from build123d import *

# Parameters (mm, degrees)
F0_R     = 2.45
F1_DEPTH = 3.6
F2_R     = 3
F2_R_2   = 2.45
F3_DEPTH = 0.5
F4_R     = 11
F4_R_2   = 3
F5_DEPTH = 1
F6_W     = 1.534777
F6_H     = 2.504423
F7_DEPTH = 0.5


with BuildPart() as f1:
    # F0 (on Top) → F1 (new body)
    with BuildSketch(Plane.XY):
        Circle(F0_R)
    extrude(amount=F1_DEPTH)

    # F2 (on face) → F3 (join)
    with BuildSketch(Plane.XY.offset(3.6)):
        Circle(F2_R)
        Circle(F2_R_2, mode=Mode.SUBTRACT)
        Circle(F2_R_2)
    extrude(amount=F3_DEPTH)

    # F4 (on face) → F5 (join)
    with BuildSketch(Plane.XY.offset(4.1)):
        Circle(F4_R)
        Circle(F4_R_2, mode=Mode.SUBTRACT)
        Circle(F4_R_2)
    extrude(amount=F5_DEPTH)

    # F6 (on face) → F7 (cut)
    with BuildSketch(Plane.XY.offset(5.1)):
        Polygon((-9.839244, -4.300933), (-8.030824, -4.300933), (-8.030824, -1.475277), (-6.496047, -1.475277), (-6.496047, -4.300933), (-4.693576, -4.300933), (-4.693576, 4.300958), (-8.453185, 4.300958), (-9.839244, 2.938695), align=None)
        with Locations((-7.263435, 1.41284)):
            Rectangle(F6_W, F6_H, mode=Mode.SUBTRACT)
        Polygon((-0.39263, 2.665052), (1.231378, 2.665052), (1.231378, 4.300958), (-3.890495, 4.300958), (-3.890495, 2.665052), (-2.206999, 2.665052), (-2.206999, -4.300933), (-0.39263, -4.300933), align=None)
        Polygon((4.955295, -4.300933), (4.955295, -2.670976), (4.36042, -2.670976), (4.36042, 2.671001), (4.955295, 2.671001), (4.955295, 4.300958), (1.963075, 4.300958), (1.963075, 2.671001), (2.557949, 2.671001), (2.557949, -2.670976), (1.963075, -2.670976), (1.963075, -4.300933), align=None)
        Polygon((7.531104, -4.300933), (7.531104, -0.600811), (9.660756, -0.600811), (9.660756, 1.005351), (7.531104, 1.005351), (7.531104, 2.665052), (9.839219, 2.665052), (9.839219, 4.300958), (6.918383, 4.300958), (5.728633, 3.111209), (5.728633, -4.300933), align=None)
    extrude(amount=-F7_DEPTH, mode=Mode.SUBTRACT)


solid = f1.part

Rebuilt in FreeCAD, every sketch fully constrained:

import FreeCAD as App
import Part
import Sketcher

doc = App.newDocument("Part")
body = doc.addObject("PartDesign::Body", "Body")

sketch1 = body.newObject("Sketcher::SketchObject", "Sketch")
sketch1.AttachmentSupport = (doc.getObject("XY_Plane"), [""])
sketch1.MapMode = "FlatFace"
sketch1.addGeometry(Part.Circle(App.Vector(0, 0, 0), App.Vector(0, 0, 1), 2.45), False)
sketch1.addConstraint([
    Sketcher.Constraint("Coincident", 0, 3, -1, 1),
    Sketcher.Constraint("Diameter", 0, 4.9),
])
pad1 = body.newObject("PartDesign::Pad", "Pad")
pad1.Profile = sketch1
pad1.Length = 3.6

sketch2 = body.newObject("Sketcher::SketchObject", "Sketch001")
sketch2.AttachmentSupport = (doc.getObject("XY_Plane"), [""])
sketch2.MapMode = "FlatFace"
sketch2.AttachmentOffset = App.Placement(App.Vector(0, 0, 3.6), App.Rotation())
sketch2.addGeometry(Part.Circle(App.Vector(0, 0, 0), App.Vector(0, 0, 1), 3), False)
sketch2.addConstraint([
    Sketcher.Constraint("Coincident", 0, 3, -1, 1),
    Sketcher.Constraint("Diameter", 0, 6.0),
])
pad2 = body.newObject("PartDesign::Pad", "Pad001")
pad2.Profile = sketch2
pad2.Length = 0.5

sketch3 = body.newObject("Sketcher::SketchObject", "Sketch002")
sketch3.AttachmentSupport = (doc.getObject("XY_Plane"), [""])
sketch3.MapMode = "FlatFace"
sketch3.AttachmentOffset = App.Placement(App.Vector(0, 0, 4.1), App.Rotation())
sketch3.addGeometry(Part.Circle(App.Vector(0, 0, 0), App.Vector(0, 0, 1), 11), False)
sketch3.addConstraint([
    Sketcher.Constraint("Coincident", 0, 3, -1, 1),
    Sketcher.Constraint("Diameter", 0, 22.0),
])
pad3 = body.newObject("PartDesign::Pad", "Pad002")
pad3.Profile = sketch3
pad3.Length = 1

sketch4 = body.newObject("Sketcher::SketchObject", "Sketch003")
sketch4.AttachmentSupport = (doc.getObject("XY_Plane"), [""])
sketch4.MapMode = "FlatFace"
sketch4.AttachmentOffset = App.Placement(App.Vector(0, 0, 5.1), App.Rotation())
sketch4.addGeometry([
    Part.LineSegment(App.Vector(-9.839244, -4.300933, 0), App.Vector(-8.030824, -4.300933, 0)),
    Part.LineSegment(App.Vector(-8.030824, -4.300933, 0), App.Vector(-8.030824, -1.475277, 0)),
    Part.LineSegment(App.Vector(-8.030824, -1.475277, 0), App.Vector(-6.496047, -1.475277, 0)),
    Part.LineSegment(App.Vector(-6.496047, -1.475277, 0), App.Vector(-6.496047, -4.300933, 0)),
    Part.LineSegment(App.Vector(-6.496047, -4.300933, 0), App.Vector(-4.693576, -4.300933, 0)),
    Part.LineSegment(App.Vector(-4.693576, -4.300933, 0), App.Vector(-4.693576, 4.300958, 0)),
    Part.LineSegment(App.Vector(-4.693576, 4.300958, 0), App.Vector(-8.453185, 4.300958, 0)),
    Part.LineSegment(App.Vector(-8.453185, 4.300958, 0), App.Vector(-9.839244, 2.938695, 0)),
    Part.LineSegment(App.Vector(-9.839244, 2.938695, 0), App.Vector(-9.839244, -4.300933, 0)),
    Part.LineSegment(App.Vector(-6.496047, 0.160629, 0), App.Vector(-8.030824, 0.160629, 0)),
    Part.LineSegment(App.Vector(-8.030824, 0.160629, 0), App.Vector(-8.030824, 2.665052, 0)),
    Part.LineSegment(App.Vector(-8.030824, 2.665052, 0), App.Vector(-6.496047, 2.665052, 0)),
    Part.LineSegment(App.Vector(-6.496047, 2.665052, 0), App.Vector(-6.496047, 0.160629, 0)),
    Part.LineSegment(App.Vector(-0.39263, 2.665052, 0), App.Vector(1.231378, 2.665052, 0)),
    Part.LineSegment(App.Vector(1.231378, 2.665052, 0), App.Vector(1.231378, 4.300958, 0)),
    Part.LineSegment(App.Vector(1.231378, 4.300958, 0), App.Vector(-3.890495, 4.300958, 0)),
    Part.LineSegment(App.Vector(-3.890495, 4.300958, 0), App.Vector(-3.890495, 2.665052, 0)),
    Part.LineSegment(App.Vector(-3.890495, 2.665052, 0), App.Vector(-2.206999, 2.665052, 0)),
    Part.LineSegment(App.Vector(-2.206999, 2.665052, 0), App.Vector(-2.206999, -4.300933, 0)),
    Part.LineSegment(App.Vector(-2.206999, -4.300933, 0), App.Vector(-0.39263, -4.300933, 0)),
    Part.LineSegment(App.Vector(-0.39263, -4.300933, 0), App.Vector(-0.39263, 2.665052, 0)),
    Part.LineSegment(App.Vector(4.955295, -4.300933, 0), App.Vector(4.955295, -2.670976, 0)),
    Part.LineSegment(App.Vector(4.955295, -2.670976, 0), App.Vector(4.36042, -2.670976, 0)),
    Part.LineSegment(App.Vector(4.36042, -2.670976, 0), App.Vector(4.36042, 2.671001, 0)),
    Part.LineSegment(App.Vector(4.36042, 2.671001, 0), App.Vector(4.955295, 2.671001, 0)),
    Part.LineSegment(App.Vector(4.955295, 2.671001, 0), App.Vector(4.955295, 4.300958, 0)),
    Part.LineSegment(App.Vector(4.955295, 4.300958, 0), App.Vector(1.963075, 4.300958, 0)),
    Part.LineSegment(App.Vector(1.963075, 4.300958, 0), App.Vector(1.963075, 2.671001, 0)),
    Part.LineSegment(App.Vector(1.963075, 2.671001, 0), App.Vector(2.557949, 2.671001, 0)),
    Part.LineSegment(App.Vector(2.557949, 2.671001, 0), App.Vector(2.557949, -2.670976, 0)),
    Part.LineSegment(App.Vector(2.557949, -2.670976, 0), App.Vector(1.963075, -2.670976, 0)),
    Part.LineSegment(App.Vector(1.963075, -2.670976, 0), App.Vector(1.963075, -4.300933, 0)),
    Part.LineSegment(App.Vector(1.963075, -4.300933, 0), App.Vector(4.955295, -4.300933, 0)),
    Part.LineSegment(App.Vector(7.531104, -4.300933, 0), App.Vector(7.531104, -0.600811, 0)),
    Part.LineSegment(App.Vector(7.531104, -0.600811, 0), App.Vector(9.660756, -0.600811, 0)),
    Part.LineSegment(App.Vector(9.660756, -0.600811, 0), App.Vector(9.660756, 1.005351, 0)),
    Part.LineSegment(App.Vector(9.660756, 1.005351, 0), App.Vector(7.531104, 1.005351, 0)),
    Part.LineSegment(App.Vector(7.531104, 1.005351, 0), App.Vector(7.531104, 2.665052, 0)),
    Part.LineSegment(App.Vector(7.531104, 2.665052, 0), App.Vector(9.839219, 2.665052, 0)),
    Part.LineSegment(App.Vector(9.839219, 2.665052, 0), App.Vector(9.839219, 4.300958, 0)),
    Part.LineSegment(App.Vector(9.839219, 4.300958, 0), App.Vector(6.918383, 4.300958, 0)),
    Part.LineSegment(App.Vector(6.918383, 4.300958, 0), App.Vector(5.728633, 3.111209, 0)),
    Part.LineSegment(App.Vector(5.728633, 3.111209, 0), App.Vector(5.728633, -4.300933, 0)),
    Part.LineSegment(App.Vector(5.728633, -4.300933, 0), App.Vector(7.531104, -4.300933, 0)),
], False)
sketch4.addConstraint([
    Sketcher.Constraint("Coincident", 0, 2, 1, 1),
    Sketcher.Constraint("Coincident", 1, 2, 2, 1),
    Sketcher.Constraint("Coincident", 2, 2, 3, 1),
    Sketcher.Constraint("Coincident", 3, 2, 4, 1),
    Sketcher.Constraint("Coincident", 4, 2, 5, 1),
    Sketcher.Constraint("Coincident", 5, 2, 6, 1),
    Sketcher.Constraint("Coincident", 6, 2, 7, 1),
    Sketcher.Constraint("Coincident", 7, 2, 8, 1),
    Sketcher.Constraint("Coincident", 8, 2, 0, 1),
    Sketcher.Constraint("Coincident", 9, 2, 10, 1),
    Sketcher.Constraint("Coincident", 10, 2, 11, 1),
    Sketcher.Constraint("Coincident", 11, 2, 12, 1),
    Sketcher.Constraint("Coincident", 12, 2, 9, 1),
    Sketcher.Constraint("Coincident", 13, 2, 14, 1),
    Sketcher.Constraint("Coincident", 14, 2, 15, 1),
    Sketcher.Constraint("Coincident", 15, 2, 16, 1),
    Sketcher.Constraint("Coincident", 16, 2, 17, 1),
    Sketcher.Constraint("Coincident", 17, 2, 18, 1),
    Sketcher.Constraint("Coincident", 18, 2, 19, 1),
    Sketcher.Constraint("Coincident", 19, 2, 20, 1),
    Sketcher.Constraint("Coincident", 20, 2, 13, 1),
    Sketcher.Constraint("Coincident", 21, 2, 22, 1),
    Sketcher.Constraint("Coincident", 22, 2, 23, 1),
    Sketcher.Constraint("Coincident", 23, 2, 24, 1),
    Sketcher.Constraint("Coincident", 24, 2, 25, 1),
    Sketcher.Constraint("Coincident", 25, 2, 26, 1),
    Sketcher.Constraint("Coincident", 26, 2, 27, 1),
    Sketcher.Constraint("Coincident", 27, 2, 28, 1),
    Sketcher.Constraint("Coincident", 28, 2, 29, 1),
    Sketcher.Constraint("Coincident", 29, 2, 30, 1),
    Sketcher.Constraint("Coincident", 30, 2, 31, 1),
    Sketcher.Constraint("Coincident", 31, 2, 32, 1),
    Sketcher.Constraint("Coincident", 32, 2, 21, 1),
    Sketcher.Constraint("Coincident", 33, 2, 34, 1),
    Sketcher.Constraint("Coincident", 34, 2, 35, 1),
    Sketcher.Constraint("Coincident", 35, 2, 36, 1),
    Sketcher.Constraint("Coincident", 36, 2, 37, 1),
    Sketcher.Constraint("Coincident", 37, 2, 38, 1),
    Sketcher.Constraint("Coincident", 38, 2, 39, 1),
    Sketcher.Constraint("Coincident", 39, 2, 40, 1),
    Sketcher.Constraint("Coincident", 40, 2, 41, 1),
    Sketcher.Constraint("Coincident", 41, 2, 42, 1),
    Sketcher.Constraint("Coincident", 42, 2, 43, 1),
    Sketcher.Constraint("Coincident", 43, 2, 33, 1),
    Sketcher.Constraint("Horizontal", 0),
    Sketcher.Constraint("Vertical", 1),
    Sketcher.Constraint("Horizontal", 2),
    Sketcher.Constraint("Vertical", 3),
    Sketcher.Constraint("Horizontal", 4),
    Sketcher.Constraint("Vertical", 5),
    Sketcher.Constraint("Horizontal", 6),
    Sketcher.Constraint("Vertical", 8),
    Sketcher.Constraint("Horizontal", 9),
    Sketcher.Constraint("Vertical", 10),
    Sketcher.Constraint("Horizontal", 11),
    Sketcher.Constraint("Vertical", 12),
    Sketcher.Constraint("Horizontal", 13),
    Sketcher.Constraint("Vertical", 14),
    Sketcher.Constraint("Horizontal", 15),
    Sketcher.Constraint("Vertical", 16),
    Sketcher.Constraint("Horizontal", 17),
    Sketcher.Constraint("Vertical", 18),
    Sketcher.Constraint("Horizontal", 19),
    Sketcher.Constraint("Vertical", 20),
    Sketcher.Constraint("Vertical", 21),
    Sketcher.Constraint("Horizontal", 22),
    Sketcher.Constraint("Vertical", 23),
    Sketcher.Constraint("Horizontal", 24),
    Sketcher.Constraint("Vertical", 25),
    Sketcher.Constraint("Horizontal", 26),
    Sketcher.Constraint("Vertical", 27),
    Sketcher.Constraint("Horizontal", 28),
    Sketcher.Constraint("Vertical", 29),
    Sketcher.Constraint("Horizontal", 30),
    Sketcher.Constraint("Vertical", 31),
    Sketcher.Constraint("Horizontal", 32),
    Sketcher.Constraint("Vertical", 33),
    Sketcher.Constraint("Horizontal", 34),
    Sketcher.Constraint("Vertical", 35),
    Sketcher.Constraint("Horizontal", 36),
    Sketcher.Constraint("Vertical", 37),
    Sketcher.Constraint("Horizontal", 38),
    Sketcher.Constraint("Vertical", 39),
    Sketcher.Constraint("Horizontal", 40),
    Sketcher.Constraint("Vertical", 42),
    Sketcher.Constraint("Horizontal", 43),
    Sketcher.Constraint("Horizontal", 0, 2, 3, 2),
    Sketcher.Constraint("Horizontal", 11, 2, 13, 2),
    Sketcher.Constraint("Horizontal", 6, 2, 14, 2),
    Sketcher.Constraint("Horizontal", 13, 2, 16, 2),
    Sketcher.Constraint("Horizontal", 8, 2, 18, 2),
    Sketcher.Constraint("Horizontal", 15, 2, 25, 2),
    Sketcher.Constraint("Horizontal", 24, 2, 27, 2),
    Sketcher.Constraint("Horizontal", 22, 2, 29, 2),
    Sketcher.Constraint("Horizontal", 19, 2, 31, 2),
    Sketcher.Constraint("Horizontal", 20, 2, 37, 2),
    Sketcher.Constraint("Horizontal", 26, 2, 39, 2),
    Sketcher.Constraint("Horizontal", 32, 2, 42, 2),
    Sketcher.Constraint("Vertical", 1, 2, 9, 2),
    Sketcher.Constraint("Vertical", 3, 2, 11, 2),
    Sketcher.Constraint("Vertical", 21, 2, 24, 2),
    Sketcher.Constraint("Vertical", 27, 2, 30, 2),
    Sketcher.Constraint("Vertical", 33, 2, 36, 2),
    Sketcher.Constraint("Equal", 24, 28),
    Sketcher.Constraint("Equal", 4, 43),
    Sketcher.Constraint("Equal", 21, 25),
    Sketcher.Constraint("DistanceY", 37, 1, 37, 2, 1.659701),
    Sketcher.Constraint("DistanceX", 17, 2, -1, 1, 2.206999),
    Sketcher.Constraint("DistanceY", -1, 1, 23, 2, 2.671001),
    Sketcher.Constraint("DistanceX", 0, 1, 0, 2, 1.80842),
    Sketcher.Constraint("DistanceX", 4, 1, 4, 2, 1.802471),
    Sketcher.Constraint("DistanceX", 6, 2, 6, 1, 3.759609),
    Sketcher.Constraint("DistanceX", 13, 1, 13, 2, 1.624008),
    Sketcher.Constraint("DistanceX", 19, 1, 19, 2, 1.814369),
    Sketcher.Constraint("DistanceX", 26, 2, 26, 1, 2.99222),
    Sketcher.Constraint("DistanceX", 34, 1, 34, 2, 2.129652),
    Sketcher.Constraint("DistanceY", 5, 1, 5, 2, 8.601891),
    Sketcher.Constraint("DistanceY", 33, 1, 33, 2, 3.700122),
    Sketcher.Constraint("DistanceY", 42, 2, 42, 1, 7.412142),
    Sketcher.Constraint("DistanceX", 10, 2, 14, 2, 9.262201),
    Sketcher.Constraint("Distance", 7, 1.94343),
    Sketcher.Constraint("Distance", 41, 1.68256),
    Sketcher.Constraint("DistanceX", 2, 1, 2, 2, 1.534777),
    Sketcher.Constraint("DistanceX", 15, 2, 15, 1, 5.121873),
    Sketcher.Constraint("DistanceX", 22, 2, 22, 1, 0.594875),
    Sketcher.Constraint("DistanceX", 38, 1, 38, 2, 2.308115),
    Sketcher.Constraint("DistanceY", 1, 1, 1, 2, 2.825656),
    Sketcher.Constraint("DistanceY", 10, 1, 10, 2, 2.504423),
    Sketcher.Constraint("DistanceY", 14, 1, 14, 2, 1.635906),
    Sketcher.Constraint("DistanceY", 21, 1, 21, 2, 1.629957),
    Sketcher.Constraint("DistanceX", -1, 1, 22, 2, 4.36042),
    Sketcher.Constraint("DistanceX", -1, 1, 38, 2, 9.839219),
])
pocket1 = body.newObject("PartDesign::Pocket", "Pocket")
pocket1.Profile = sketch4
pocket1.Length = 0.5

doc.recompute()
